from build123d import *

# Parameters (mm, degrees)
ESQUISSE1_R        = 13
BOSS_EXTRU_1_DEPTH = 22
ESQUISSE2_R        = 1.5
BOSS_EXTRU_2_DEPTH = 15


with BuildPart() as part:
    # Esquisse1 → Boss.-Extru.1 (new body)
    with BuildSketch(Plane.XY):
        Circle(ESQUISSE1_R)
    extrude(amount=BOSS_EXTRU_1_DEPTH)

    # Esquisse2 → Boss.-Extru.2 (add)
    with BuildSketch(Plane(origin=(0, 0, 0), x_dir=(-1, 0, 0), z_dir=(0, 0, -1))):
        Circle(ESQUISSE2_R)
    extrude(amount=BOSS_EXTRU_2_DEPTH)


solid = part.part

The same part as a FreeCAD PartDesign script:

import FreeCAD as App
import Part
import Sketcher
Q = App.Units.Quantity

doc = App.newDocument("Part")
params = doc.addObject("Spreadsheet::Sheet", "Params")
for row, (alias, value) in enumerate([
    ("sketch1_diameter", "26 mm"),
    ("pad1_length", "22 mm"),
    ("sketch2_diameter", "3 mm"),
    ("pad2_length", "15 mm"),
], start=1):
    params.set(f"A{row}", alias)
    params.set(f"B{row}", "=" + value)
    params.setAlias(f"B{row}", alias)

body = doc.addObject("PartDesign::Body", "Body")

# Sketch on XY plane
sketch1 = body.newObject("Sketcher::SketchObject", "Sketch")
sketch1.AttachmentSupport = (doc.getObject("XY_Plane"), [""])
sketch1.MapMode = "FlatFace"
sketch1.addGeometry(Part.Circle(App.Vector(0, 0, 0), App.Vector(0, 0, 1), 13), False)
sketch1.addConstraint(Sketcher.Constraint("Coincident", 0, 3, -1, 1))
sketch1.addConstraint(Sketcher.Constraint("Diameter", 0, Q("26 mm")))
sketch1.setExpression("Constraints[1]", "Params.sketch1_diameter")
pad1 = body.newObject("PartDesign::Pad", "Pad")
pad1.Profile = sketch1
pad1.setExpression("Length", "Params.pad1_length")

# Sketch on XY plane
sketch2 = body.newObject("Sketcher::SketchObject", "Sketch001")
sketch2.AttachmentSupport = (doc.getObject("XY_Plane"), [""])
sketch2.MapMode = "FlatFace"
sketch2.addGeometry(Part.Circle(App.Vector(0, 0, 0), App.Vector(0, 0, 1), 1.5), False)
sketch2.addConstraint(Sketcher.Constraint("Coincident", 0, 3, -1, 1))
sketch2.addConstraint(Sketcher.Constraint("Diameter", 0, Q("3 mm")))
sketch2.setExpression("Constraints[1]", "Params.sketch2_diameter")
pad2 = body.newObject("PartDesign::Pad", "Pad001")
pad2.Profile = sketch2
pad2.setExpression("Length", "Params.pad2_length")
pad2.Reversed = True

doc.recompute()
